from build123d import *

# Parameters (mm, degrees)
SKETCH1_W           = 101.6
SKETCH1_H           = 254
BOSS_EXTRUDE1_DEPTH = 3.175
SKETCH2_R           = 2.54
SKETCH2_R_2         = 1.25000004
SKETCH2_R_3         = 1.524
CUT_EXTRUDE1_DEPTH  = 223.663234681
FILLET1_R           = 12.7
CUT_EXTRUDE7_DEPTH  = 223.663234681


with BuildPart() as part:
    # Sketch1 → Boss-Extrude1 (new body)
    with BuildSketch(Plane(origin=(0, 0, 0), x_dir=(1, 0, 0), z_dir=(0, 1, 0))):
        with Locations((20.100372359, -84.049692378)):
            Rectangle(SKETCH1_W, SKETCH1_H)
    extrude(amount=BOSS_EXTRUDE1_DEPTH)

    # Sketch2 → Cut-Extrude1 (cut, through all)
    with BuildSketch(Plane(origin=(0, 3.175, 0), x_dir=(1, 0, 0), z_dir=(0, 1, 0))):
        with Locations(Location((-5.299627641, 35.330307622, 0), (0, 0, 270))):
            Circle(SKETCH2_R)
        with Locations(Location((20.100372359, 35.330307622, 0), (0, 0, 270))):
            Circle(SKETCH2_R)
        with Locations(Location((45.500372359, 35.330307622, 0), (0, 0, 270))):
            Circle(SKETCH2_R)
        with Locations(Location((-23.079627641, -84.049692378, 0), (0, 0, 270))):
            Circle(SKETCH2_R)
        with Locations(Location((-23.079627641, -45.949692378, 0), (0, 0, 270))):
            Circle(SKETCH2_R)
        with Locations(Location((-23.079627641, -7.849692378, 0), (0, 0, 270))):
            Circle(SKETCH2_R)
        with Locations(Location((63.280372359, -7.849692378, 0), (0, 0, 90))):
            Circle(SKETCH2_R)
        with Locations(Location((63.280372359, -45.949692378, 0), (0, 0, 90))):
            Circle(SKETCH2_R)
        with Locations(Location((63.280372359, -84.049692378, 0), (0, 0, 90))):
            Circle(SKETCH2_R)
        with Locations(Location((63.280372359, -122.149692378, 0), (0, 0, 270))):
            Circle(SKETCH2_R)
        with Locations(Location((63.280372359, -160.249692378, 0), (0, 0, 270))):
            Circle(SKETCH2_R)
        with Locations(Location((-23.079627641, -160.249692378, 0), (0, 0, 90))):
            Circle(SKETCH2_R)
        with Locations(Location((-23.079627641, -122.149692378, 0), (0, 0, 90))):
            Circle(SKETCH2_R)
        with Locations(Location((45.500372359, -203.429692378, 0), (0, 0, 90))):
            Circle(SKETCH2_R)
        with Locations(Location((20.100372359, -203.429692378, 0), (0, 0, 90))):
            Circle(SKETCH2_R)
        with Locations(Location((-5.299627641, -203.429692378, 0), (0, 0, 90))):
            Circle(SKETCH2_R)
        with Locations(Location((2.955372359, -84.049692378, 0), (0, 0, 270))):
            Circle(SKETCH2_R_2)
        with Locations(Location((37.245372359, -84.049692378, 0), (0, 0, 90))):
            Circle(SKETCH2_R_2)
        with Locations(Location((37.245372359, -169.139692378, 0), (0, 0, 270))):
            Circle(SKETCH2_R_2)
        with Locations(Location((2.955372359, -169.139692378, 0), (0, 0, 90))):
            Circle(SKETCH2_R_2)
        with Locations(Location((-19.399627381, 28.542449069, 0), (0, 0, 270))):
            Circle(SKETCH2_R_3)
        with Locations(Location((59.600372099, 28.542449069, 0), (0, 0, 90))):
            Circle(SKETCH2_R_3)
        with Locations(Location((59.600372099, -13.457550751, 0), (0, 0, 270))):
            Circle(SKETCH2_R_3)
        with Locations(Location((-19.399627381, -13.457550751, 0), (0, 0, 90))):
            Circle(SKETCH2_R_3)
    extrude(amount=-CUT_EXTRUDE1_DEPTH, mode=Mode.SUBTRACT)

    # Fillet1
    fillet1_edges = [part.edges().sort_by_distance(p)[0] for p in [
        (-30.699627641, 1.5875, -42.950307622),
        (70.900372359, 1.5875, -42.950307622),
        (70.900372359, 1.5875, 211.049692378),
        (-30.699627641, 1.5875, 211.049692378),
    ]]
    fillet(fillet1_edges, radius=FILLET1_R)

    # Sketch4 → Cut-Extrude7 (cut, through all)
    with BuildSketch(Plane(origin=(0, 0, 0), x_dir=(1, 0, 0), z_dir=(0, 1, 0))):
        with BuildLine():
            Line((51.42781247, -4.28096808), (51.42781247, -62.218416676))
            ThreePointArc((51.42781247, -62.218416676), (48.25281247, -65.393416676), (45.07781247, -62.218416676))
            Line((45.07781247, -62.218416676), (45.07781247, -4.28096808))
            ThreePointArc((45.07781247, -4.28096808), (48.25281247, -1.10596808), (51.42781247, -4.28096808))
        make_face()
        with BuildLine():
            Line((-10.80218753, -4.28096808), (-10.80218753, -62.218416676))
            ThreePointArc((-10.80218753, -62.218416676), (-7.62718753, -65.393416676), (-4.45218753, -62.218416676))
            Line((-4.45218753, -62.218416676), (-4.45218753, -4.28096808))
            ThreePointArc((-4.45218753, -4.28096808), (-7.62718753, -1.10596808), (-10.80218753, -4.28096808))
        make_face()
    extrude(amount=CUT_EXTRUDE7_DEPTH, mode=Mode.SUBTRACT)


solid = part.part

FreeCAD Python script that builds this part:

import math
import FreeCAD as App
import Part
import Sketcher

V = App.Vector
Q = App.Units.Quantity


def edges_at(feature, points):
    """Names of the edges that pass closest to the given points."""
    edges = feature.Shape.Edges
    near = lambda p: min(range(len(edges)), key=lambda i: edges[i].distToShape(Part.Vertex(*p))[0])
    return sorted({f"Edge{near(p) + 1}" for p in points})

doc = App.newDocument("Part")
body = doc.addObject("PartDesign::Body", "Body")

# Sketch on XZ plane
sketch1 = body.newObject("Sketcher::SketchObject", "Sketch")
sketch1.AttachmentSupport = (doc.getObject("XZ_Plane"), [""])
sketch1.MapMode = "FlatFace"
sketch1.addGeometry([
    Part.LineSegment(V(-31, -43, 0), V(-31, 211, 0)),
    Part.LineSegment(V(-31, 211, 0), V(71, 211, 0)),
    Part.LineSegment(V(71, 211, 0), V(71, -43, 0)),
    Part.LineSegment(V(71, -43, 0), V(-31, -43, 0)),
], False)
sketch1.addConstraint([
    Sketcher.Constraint("Coincident", 0, 2, 1, 1),
    Sketcher.Constraint("Coincident", 1, 2, 2, 1),
    Sketcher.Constraint("Coincident", 2, 2, 3, 1),
    Sketcher.Constraint("Coincident", 3, 2, 0, 1),
    Sketcher.Constraint("Vertical", 0),
    Sketcher.Constraint("Horizontal", 1),
    Sketcher.Constraint("Vertical", 2),
    Sketcher.Constraint("Horizontal", 3),
    Sketcher.Constraint("DistanceX", 1, 1, 1, 2, Q("4 in")),
    Sketcher.Constraint("DistanceY", 0, 1, 0, 2, Q("10 in")),
    Sketcher.Constraint("DistanceX", 0, 2, -1, 1, 30.699628),
    Sketcher.Constraint("DistanceY", -1, 1, 0, 2, 211.049692),
])
pad1 = body.newObject("PartDesign::Pad", "Pad")
pad1.Profile = sketch1
pad1.Length = Q("0.125 in")
pad1.Reversed = True

# Sketch on XZ plane
sketch2 = body.newObject("Sketcher::SketchObject", "Sketch001")
sketch2.AttachmentSupport = (doc.getObject("XZ_Plane"), [""])
sketch2.MapMode = "FlatFace"
sketch2.AttachmentOffset = App.Placement(V(0, 0, -0.125 * 25.4), App.Rotation())
sketch2.addGeometry([
    Part.Circle(V(-5.3, -35.3, 0), V(0, 0, 1), 2.5),  # 0
    Part.Circle(V(20.1, -35.3, 0), V(0, 0, 1), 2.5),  # 1
    Part.Circle(V(45.5, -35.3, 0), V(0, 0, 1), 2.5),  # 2
    Part.Circle(V(-23.1, 84, 0), V(0, 0, 1), 2.5),  # 3
    Part.Circle(V(-23.1, 45.9, 0), V(0, 0, 1), 2.5),  # 4
    Part.Circle(V(-23.1, 7.8, 0), V(0, 0, 1), 2.5),  # 5
    Part.Circle(V(63.3, 7.8, 0), V(0, 0, 1), 2.5),  # 6
    Part.Circle(V(63.3, 45.9, 0), V(0, 0, 1), 2.5),  # 7
    Part.Circle(V(63.3, 84, 0), V(0, 0, 1), 2.5),  # 8
    Part.Circle(V(63.3, 122.1, 0), V(0, 0, 1), 2.5),  # 9
    Part.Circle(V(63.3, 160.2, 0), V(0, 0, 1), 2.5),  # 10
    Part.Circle(V(-23.1, 160.2, 0), V(0, 0, 1), 2.5),  # 11
    Part.Circle(V(-23.1, 122.1, 0), V(0, 0, 1), 2.5),  # 12
    Part.Circle(V(45.5, 203.4, 0), V(0, 0, 1), 2.5),  # 13
    Part.Circle(V(20.1, 203.4, 0), V(0, 0, 1), 2.5),  # 14
    Part.Circle(V(-5.3, 203.4, 0), V(0, 0, 1), 2.5),  # 15
    Part.Circle(V(3, 84, 0), V(0, 0, 1), 1.3),  # 16
    Part.Circle(V(37.2, 84, 0), V(0, 0, 1), 1.3),  # 17
    Part.Circle(V(37.2, 169.1, 0), V(0, 0, 1), 1.3),  # 18
    Part.Circle(V(3, 169.1, 0), V(0, 0, 1), 1.3),  # 19
    Part.Circle(V(-19.4, -28.5, 0), V(0, 0, 1), 1.5),  # 20
    Part.Circle(V(59.6, -28.5, 0), V(0, 0, 1), 1.5),  # 21
    Part.Circle(V(59.6, 13.5, 0), V(0, 0, 1), 1.5),  # 22
    Part.Circle(V(-19.4, 13.5, 0), V(0, 0, 1), 1.5),  # 23
], False)
sketch2.addConstraint([
    Sketcher.Constraint("Equal", 0, 1),
    Sketcher.Constraint("Equal", 1, 2),
    Sketcher.Constraint("Equal", 2, 3),
    Sketcher.Constraint("Equal", 3, 4),
    Sketcher.Constraint("Equal", 4, 5),
    Sketcher.Constraint("Equal", 5, 6),
    Sketcher.Constraint("Equal", 6, 7),
    Sketcher.Constraint("Equal", 7, 8),
    Sketcher.Constraint("Equal", 8, 9),
    Sketcher.Constraint("Equal", 9, 10),
    Sketcher.Constraint("Equal", 10, 11),
    Sketcher.Constraint("Equal", 11, 12),
    Sketcher.Constraint("Equal", 12, 13),
    Sketcher.Constraint("Equal", 13, 14),
    Sketcher.Constraint("Equal", 14, 15),
    Sketcher.Constraint("Equal", 16, 17),
    Sketcher.Constraint("Equal", 17, 18),
    Sketcher.Constraint("Equal", 18, 19),
    Sketcher.Constraint("Equal", 20, 21),
    Sketcher.Constraint("Equal", 21, 22),
    Sketcher.Constraint("Equal", 22, 23),
    Sketcher.Constraint("Horizontal", 0, 3, 1, 3),
    Sketcher.Constraint("Horizontal", 1, 3, 2, 3),
    Sketcher.Constraint("Horizontal", 5, 3, 6, 3),
    Sketcher.Constraint("Horizontal", 4, 3, 7, 3),
    Sketcher.Constraint("Horizontal", 3, 3, 8, 3),
    Sketcher.Constraint("Horizontal", 10, 3, 11, 3),
    Sketcher.Constraint("Horizontal", 9, 3, 12, 3),
    Sketcher.Constraint("Horizontal", 13, 3, 14, 3),
    Sketcher.Constraint("Horizontal", 14, 3, 15, 3),
    Sketcher.Constraint("Horizontal", 8, 3, 16, 3),
    Sketcher.Constraint("Horizontal", 16, 3, 17, 3),
    Sketcher.Constraint("Horizontal", 18, 3, 19, 3),
    Sketcher.Constraint("Horizontal", 20, 3, 21, 3),
    Sketcher.Constraint("Horizontal", 22, 3, 23, 3),
    Sketcher.Constraint("Vertical", 3, 3, 4, 3),
    Sketcher.Constraint("Vertical", 4, 3, 5, 3),
    Sketcher.Constraint("Vertical", 6, 3, 7, 3),
    Sketcher.Constraint("Vertical", 7, 3, 8, 3),
    Sketcher.Constraint("Vertical", 8, 3, 9, 3),
    Sketcher.Constraint("Vertical", 9, 3, 10, 3),
    Sketcher.Constraint("Vertical", 5, 3, 11, 3),
    Sketcher.Constraint("Vertical", 11, 3, 12, 3),
    Sketcher.Constraint("Vertical", 2, 3, 13, 3),
    Sketcher.Constraint("Vertical", 1, 3, 14, 3),
    Sketcher.Constraint("Vertical", 0, 3, 15, 3),
    Sketcher.Constraint("Vertical", 17, 3, 18, 3),
    Sketcher.Constraint("Vertical", 16, 3, 19, 3),
    Sketcher.Constraint("Vertical", 21, 3, 22, 3),
    Sketcher.Constraint("Vertical", 20, 3, 23, 3),
    Sketcher.Constraint("Diameter", 0, Q("0.2 in")),
    Sketcher.Constraint("Diameter", 20, Q("0.12 in")),
    Sketcher.Constraint("DistanceX", 0, 3, 1, 3, Q("1 in")),
    Sketcher.Constraint("DistanceX", 1, 3, 2, 3, Q("1 in")),
    Sketcher.Constraint("DistanceY", 5, 3, 3, 3, Q("3 in")),
    Sketcher.Constraint("DistanceY", 7, 3, 9, 3, Q("3 in")),
    Sketcher.Constraint("DistanceY", 8, 3, 10, 3, Q("3 in")),
    Sketcher.Constraint("DistanceX", 3, 3, 0, 3, Q("0.7 in")),
    Sketcher.Constraint("DistanceY", 0, 3, 3, 3, Q("4.7 in")),
    Sketcher.Constraint("DistanceY", 4, 3, 3, 3, Q("1.5 in")),
    Sketcher.Constraint("DistanceX", 2, 3, 6, 3, Q("0.7 in")),
    Sketcher.Constraint("DistanceY", 10, 3, 13, 3, Q("1.7 in")),
    Sketcher.Constraint("Diameter", 16, 2.5),
    Sketcher.Constraint("DistanceX", 16, 3, 17, 3, Q("1.35 in")),
    Sketcher.Constraint("DistanceY", 10, 3, 18, 3, Q("0.35 in")),
    Sketcher.Constraint("DistanceX", 3, 3, 16, 3, Q("1.025 in")),
    Sketcher.Constraint("DistanceX", 20, 3, 0, 3, 14.1),
    Sketcher.Constraint("DistanceX", 2, 3, 21, 3, 14.1),
    Sketcher.Constraint("DistanceY", 21, 3, 22, 3, 42.0),
    Sketcher.Constraint("DistanceY", 20, 3, -1, 1, 28.542449),
    Sketcher.Constraint("DistanceY", 0, 3, 20, 3, 6.787859),
    Sketcher.Constraint("DistanceX", 0, 3, -1, 1, 5.299628),
])
pocket1 = body.newObject("PartDesign::Pocket", "Pocket")
pocket1.Profile = sketch2
pocket1.Type = "ThroughAll"
pocket1.Reversed = True
doc.recompute()

fillet = body.newObject("PartDesign::Fillet", "Fillet")
fillet.Base = (pocket1, edges_at(pocket1, [
    (-30.7, 1.587, -42.95),
    (70.9, 1.587, -42.95),
    (70.9, 1.587, 211.05),
    (-30.7, 1.587, 211.05),
]))
fillet.Radius = Q("0.5 in")

# Sketch on XZ plane
sketch3 = body.newObject("Sketcher::SketchObject", "Sketch002")
sketch3.AttachmentSupport = (doc.getObject("XZ_Plane"), [""])
sketch3.MapMode = "FlatFace"
sketch3.addGeometry([
    Part.LineSegment(V(51.4, 62.2, 0), V(51.4, 4.3, 0)),  # 0
    Part.ArcOfCircle(Part.Circle(V(48.3, 4.3, 0), V(0, 0, 1), 3.2), math.radians(180), math.radians(360)),  # 1
    Part.LineSegment(V(45.1, 4.3, 0), V(45.1, 62.2, 0)),  # 2
    Part.ArcOfCircle(Part.Circle(V(48.3, 62.2, 0), V(0, 0, 1), 3.2), math.radians(0), math.radians(180)),  # 3
    Part.LineSegment(V(-10.8, 4.3, 0), V(-10.8, 62.2, 0)),  # 4
    Part.ArcOfCircle(Part.Circle(V(-7.6, 62.2, 0), V(0, 0, 1), 3.2), math.radians(0), math.radians(180)),  # 5
    Part.LineSegment(V(-4.5, 62.2, 0), V(-4.5, 4.3, 0)),  # 6
    Part.ArcOfCircle(Part.Circle(V(-7.6, 4.3, 0), V(0, 0, 1), 3.2), math.radians(180), math.radians(360)),  # 7
], False)
sketch3.addConstraint([
    Sketcher.Constraint("Tangent", 0, 2, 1, 2),
    Sketcher.Constraint("Tangent", 1, 1, 2, 1),
    Sketcher.Constraint("Tangent", 2, 2, 3, 2),
    Sketcher.Constraint("Tangent", 3, 1, 0, 1),
    Sketcher.Constraint("Tangent", 4, 2, 5, 2),
    Sketcher.Constraint("Tangent", 5, 1, 6, 1),
    Sketcher.Constraint("Tangent", 6, 2, 7, 2),
    Sketcher.Constraint("Tangent", 7, 1, 4, 1),
    Sketcher.Constraint("Vertical", 0),
    Sketcher.Constraint("Vertical", 2),
    Sketcher.Constraint("Vertical", 4),
    Sketcher.Constraint("Vertical", 6),
    Sketcher.Constraint("Equal", 3, 5),
    Sketcher.Constraint("Horizontal", 3, 3, 5, 3),
    Sketcher.Constraint("Horizontal", 1, 3, 7, 3),
    Sketcher.Constraint("Radius", 1, Q("0.125 in")),
    Sketcher.Constraint("DistanceX", 5, 3, 3, 3, Q("2.2 in")),
    Sketcher.Constraint("DistanceY", 0, 2, 0, 1, 57.937449),
    Sketcher.Constraint("DistanceY", -1, 1, 1, 3, 4.280968),
    Sketcher.Constraint("DistanceX", -1, 1, 1, 3, 48.252812),
])
pocket2 = body.newObject("PartDesign::Pocket", "Pocket001")
pocket2.Profile = sketch3
pocket2.Type = "ThroughAll"

doc.recompute()
